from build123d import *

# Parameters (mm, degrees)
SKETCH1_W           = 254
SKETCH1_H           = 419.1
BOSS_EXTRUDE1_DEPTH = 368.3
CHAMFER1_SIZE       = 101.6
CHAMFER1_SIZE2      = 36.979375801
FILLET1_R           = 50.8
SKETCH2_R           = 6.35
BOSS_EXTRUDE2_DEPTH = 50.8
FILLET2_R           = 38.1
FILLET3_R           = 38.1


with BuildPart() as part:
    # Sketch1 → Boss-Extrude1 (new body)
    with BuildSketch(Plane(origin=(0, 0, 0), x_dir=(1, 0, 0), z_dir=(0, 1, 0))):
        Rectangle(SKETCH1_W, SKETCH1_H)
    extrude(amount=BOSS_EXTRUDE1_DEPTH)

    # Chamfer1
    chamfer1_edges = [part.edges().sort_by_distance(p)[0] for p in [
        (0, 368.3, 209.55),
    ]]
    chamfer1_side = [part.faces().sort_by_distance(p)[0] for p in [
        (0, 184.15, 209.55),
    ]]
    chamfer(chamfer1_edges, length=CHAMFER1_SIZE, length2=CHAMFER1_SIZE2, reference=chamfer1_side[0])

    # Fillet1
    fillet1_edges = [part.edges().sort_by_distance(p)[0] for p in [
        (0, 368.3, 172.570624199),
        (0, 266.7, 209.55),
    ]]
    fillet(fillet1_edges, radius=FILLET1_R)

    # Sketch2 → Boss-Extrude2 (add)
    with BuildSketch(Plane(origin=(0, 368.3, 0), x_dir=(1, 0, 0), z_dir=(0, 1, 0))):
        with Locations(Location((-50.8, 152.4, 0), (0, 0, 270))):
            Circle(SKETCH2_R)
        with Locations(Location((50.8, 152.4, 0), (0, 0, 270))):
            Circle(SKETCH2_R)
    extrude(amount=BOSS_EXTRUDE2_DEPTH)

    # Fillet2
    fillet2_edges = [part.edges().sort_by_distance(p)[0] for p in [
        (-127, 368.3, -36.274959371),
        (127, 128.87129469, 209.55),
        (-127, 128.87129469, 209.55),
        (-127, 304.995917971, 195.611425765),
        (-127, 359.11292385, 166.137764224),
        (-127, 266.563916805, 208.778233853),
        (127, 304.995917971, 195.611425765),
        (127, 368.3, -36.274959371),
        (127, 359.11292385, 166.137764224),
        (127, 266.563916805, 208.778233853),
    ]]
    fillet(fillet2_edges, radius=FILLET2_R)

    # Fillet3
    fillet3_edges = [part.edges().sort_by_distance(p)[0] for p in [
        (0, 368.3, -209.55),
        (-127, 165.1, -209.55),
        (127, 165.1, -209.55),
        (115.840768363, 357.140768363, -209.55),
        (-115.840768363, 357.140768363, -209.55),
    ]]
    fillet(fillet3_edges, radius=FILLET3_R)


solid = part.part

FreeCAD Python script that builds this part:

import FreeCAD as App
import Part
import Sketcher
Q = App.Units.Quantity


def edges_at(feature, points):
    """Names of the edges that pass closest to the given points."""
    edges = feature.Shape.Edges
    near = lambda p: min(range(len(edges)), key=lambda i: edges[i].distToShape(Part.Vertex(*p))[0])
    return sorted({f"Edge{near(p) + 1}" for p in points})

doc = App.newDocument("Part")
params = doc.addObject("Spreadsheet::Sheet", "Params")
for row, (alias, value) in enumerate([
    ("sketch1_width", "10 in"),
    ("sketch1_height", "16.5 in"),
    ("pad1_length", "14.5 in"),
    ("chamfer_size", "4 in"),
    ("chamfer_size2", "36.979376 mm"),
    ("fillet_radius", "2 in"),
    ("sketch2_diameter", "0.5 in"),
    ("pad2_length", "2 in"),
    ("fillet2_radius", "1.5 in"),
    ("fillet3_radius", "1.5 in"),
], start=1):
    params.set(f"A{row}", alias)
    params.set(f"B{row}", "=" + value)
    params.setAlias(f"B{row}", alias)

body = doc.addObject("PartDesign::Body", "Body")

sketch1 = body.newObject("Sketcher::SketchObject", "Sketch")
sketch1.AttachmentSupport = (doc.getObject("XZ_Plane"), [""])
sketch1.MapMode = "FlatFace"
sketch1.addGeometry(Part.LineSegment(App.Vector(-127, -210, 0), App.Vector(-127, 210, 0)), False)
sketch1.addGeometry(Part.LineSegment(App.Vector(-127, 210, 0), App.Vector(127, 210, 0)), False)
sketch1.addGeometry(Part.LineSegment(App.Vector(127, 210, 0), App.Vector(127, -210, 0)), False)
sketch1.addGeometry(Part.LineSegment(App.Vector(127, -210, 0), App.Vector(-127, -210, 0)), False)
sketch1.addConstraint(Sketcher.Constraint("Coincident", 0, 2, 1, 1))
sketch1.addConstraint(Sketcher.Constraint("Coincident", 1, 2, 2, 1))
sketch1.addConstraint(Sketcher.Constraint("Coincident", 2, 2, 3, 1))
sketch1.addConstraint(Sketcher.Constraint("Coincident", 3, 2, 0, 1))
sketch1.addConstraint(Sketcher.Constraint("Vertical", 0))
sketch1.addConstraint(Sketcher.Constraint("Horizontal", 1))
sketch1.addConstraint(Sketcher.Constraint("Vertical", 2))
sketch1.addConstraint(Sketcher.Constraint("Horizontal", 3))
sketch1.addConstraint(Sketcher.Constraint("Symmetric", 0, 2, 2, 2, -1, 1))
sketch1.addConstraint(Sketcher.Constraint("DistanceX", 1, 1, 1, 2, Q("10 in")))
sketch1.addConstraint(Sketcher.Constraint("DistanceY", 0, 1, 0, 2, Q("16.5 in")))
sketch1.setExpression("Constraints[9]", "Params.sketch1_width")
sketch1.setExpression("Constraints[10]", "Params.sketch1_height")
pad1 = body.newObject("PartDesign::Pad", "Pad")
pad1.Profile = sketch1
pad1.setExpression("Length", "Params.pad1_length")
pad1.Reversed = True
doc.recompute()

chamfer = body.newObject("PartDesign::Chamfer", "Chamfer")
chamfer.Base = (pad1, edges_at(pad1, [(0, 368.3, 209.55)]))
chamfer.ChamferType = "Two distances"
chamfer.setExpression("Size", "Params.chamfer_size")
chamfer.setExpression("Size2", "Params.chamfer_size2")
doc.recompute()

fillet = body.newObject("PartDesign::Fillet", "Fillet")
fillet.Base = (chamfer, edges_at(chamfer, [(0, 368.3, 172.571), (0, 266.7, 209.55)]))
fillet.setExpression("Radius", "Params.fillet_radius")

sketch2 = body.newObject("Sketcher::SketchObject", "Sketch001")
sketch2.AttachmentSupport = (doc.getObject("XZ_Plane"), [""])
sketch2.MapMode = "FlatFace"
sketch2.AttachmentOffset = App.Placement(App.Vector(0, 0, -14.5 * 25.4), App.Rotation())
sketch2.addGeometry(Part.Circle(App.Vector(-51, -152, 0), App.Vector(0, 0, 1), 6), False)
sketch2.addGeometry(Part.Circle(App.Vector(51, -152, 0), App.Vector(0, 0, 1), 6), False)
sketch2.addConstraint(Sketcher.Constraint("Equal", 0, 1))
sketch2.addConstraint(Sketcher.Constraint("Symmetric", 0, 3, 1, 3, -2))
sketch2.addConstraint(Sketcher.Constraint("Diameter", 0, Q("0.5 in")))
sketch2.addConstraint(Sketcher.Constraint("DistanceX", 0, 3, -1, 1, Q("2 in")))
sketch2.addConstraint(Sketcher.Constraint("DistanceY", 0, 3, -1, 1, Q("6 in")))
sketch2.setExpression("Constraints[2]", "Params.sketch2_diameter")
pad2 = body.newObject("PartDesign::Pad", "Pad001")
pad2.Profile = sketch2
pad2.setExpression("Length", "Params.pad2_length")
pad2.Reversed = True
doc.recompute()

fillet2 = body.newObject("PartDesign::Fillet", "Fillet001")
fillet2.Base = (pad2, edges_at(pad2, [
    (-127, 368.3, -36.275),
    (127, 128.871, 209.55),
    (-127, 128.871, 209.55),
    (-127, 304.996, 195.611),
    (-127, 359.113, 166.138),
    (-127, 266.564, 208.778),
    (127, 304.996, 195.611),
    (127, 368.3, -36.275),
    (127, 359.113, 166.138),
    (127, 266.564, 208.778),
]))
fillet2.setExpression("Radius", "Params.fillet2_radius")
doc.recompute()

fillet3 = body.newObject("PartDesign::Fillet", "Fillet002")
fillet3.Base = (fillet2, edges_at(fillet2, [
    (0, 368.3, -209.55),
    (-127, 165.1, -209.55),
    (127, 165.1, -209.55),
    (115.841, 357.141, -209.55),
    (-115.841, 357.141, -209.55),
]))
fillet3.setExpression("Radius", "Params.fillet3_radius")

doc.recompute()
